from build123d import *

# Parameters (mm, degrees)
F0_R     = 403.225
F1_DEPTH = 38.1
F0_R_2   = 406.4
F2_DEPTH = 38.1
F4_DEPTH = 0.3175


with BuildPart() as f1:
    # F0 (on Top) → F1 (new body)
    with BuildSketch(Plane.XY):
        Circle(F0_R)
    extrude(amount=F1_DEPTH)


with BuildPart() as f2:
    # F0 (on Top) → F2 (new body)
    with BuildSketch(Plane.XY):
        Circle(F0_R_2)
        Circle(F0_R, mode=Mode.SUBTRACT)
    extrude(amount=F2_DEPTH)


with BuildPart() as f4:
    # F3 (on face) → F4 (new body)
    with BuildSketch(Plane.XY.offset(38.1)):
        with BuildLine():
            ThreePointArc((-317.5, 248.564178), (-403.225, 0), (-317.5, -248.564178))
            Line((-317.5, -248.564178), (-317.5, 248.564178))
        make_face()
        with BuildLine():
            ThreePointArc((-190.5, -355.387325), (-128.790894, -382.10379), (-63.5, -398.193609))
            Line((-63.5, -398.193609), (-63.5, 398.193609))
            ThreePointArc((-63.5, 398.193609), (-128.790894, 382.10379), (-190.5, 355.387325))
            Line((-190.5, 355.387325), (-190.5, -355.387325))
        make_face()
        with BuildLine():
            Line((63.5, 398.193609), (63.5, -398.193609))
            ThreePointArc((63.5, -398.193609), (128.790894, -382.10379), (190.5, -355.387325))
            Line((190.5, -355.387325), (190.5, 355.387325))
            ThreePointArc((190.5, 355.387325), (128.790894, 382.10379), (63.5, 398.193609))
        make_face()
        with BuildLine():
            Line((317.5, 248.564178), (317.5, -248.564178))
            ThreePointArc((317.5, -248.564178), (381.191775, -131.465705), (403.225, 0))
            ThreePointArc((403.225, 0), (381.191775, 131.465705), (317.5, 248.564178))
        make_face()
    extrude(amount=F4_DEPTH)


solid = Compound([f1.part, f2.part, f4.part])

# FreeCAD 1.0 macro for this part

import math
import FreeCAD as App
import Part
import Sketcher
from FreeCAD import Vector
Q = App.Units.Quantity

doc = App.newDocument("Part")
body = doc.addObject("PartDesign::Body", "Body")

# Sketch on XY plane
sketch1 = doc.addObject("Sketcher::SketchObject", "Sketch")
body.addObject(sketch1)
sketch1.AttachmentSupport = (doc.XY_Plane, [""])
sketch1.MapMode = "FlatFace"
sketch1.addGeometry(Part.Circle(Vector(0, 0, 0), Vector(0, 0, 1), 403), False)
sketch1.addConstraint(Sketcher.Constraint("Coincident", 0, 3, -1, 1))
sketch1.addConstraint(Sketcher.Constraint("Diameter", 0, Q("31.75 in")))
pad1 = doc.addObject("PartDesign::Pad", "Pad")
body.addObject(pad1)
pad1.Profile = sketch1
pad1.Length = Q("1.5 in")
body2 = doc.addObject("PartDesign::Body", "Body001")

# Sketch on XY plane
sketch2 = doc.addObject("Sketcher::SketchObject", "Sketch001")
body2.addObject(sketch2)
sketch2.AttachmentSupport = (doc.getObject("XY_Plane001"), [""])
sketch2.MapMode = "FlatFace"
sketch2.addGeometry(Part.Circle(Vector(0, 0, 0), Vector(0, 0, 1), 406), False)
sketch2.addGeometry(Part.Circle(Vector(0, 0, 0), Vector(0, 0, 1), 403), False)
sketch2.addConstraint(Sketcher.Constraint("Coincident", 0, 3, -1, 1))
sketch2.addConstraint(Sketcher.Constraint("Coincident", 1, 3, -1, 1))
sketch2.addConstraint(Sketcher.Constraint("Diameter", 0, Q("32 in")))
sketch2.addConstraint(Sketcher.Constraint("Diameter", 1, Q("31.75 in")))
pad2 = doc.addObject("PartDesign::Pad", "Pad001")
body2.addObject(pad2)
pad2.Profile = sketch2
pad2.Length = Q("1.5 in")
body3 = doc.addObject("PartDesign::Body", "Body002")
body3.AllowCompound = True

# Sketch on XY plane
sketch3 = doc.addObject("Sketcher::SketchObject", "Sketch002")
body3.addObject(sketch3)
sketch3.AttachmentSupport = (doc.getObject("XY_Plane002"), [""])
sketch3.MapMode = "FlatFace"
sketch3.AttachmentOffset = App.Placement(Vector(0, 0, 1.5 * 25.4), App.Rotation())
sketch3.addGeometry(Part.ArcOfCircle(Part.Circle(Vector(0, 0, 0), Vector(0, 0, 1), 403.225), math.radians(141.943343), math.radians(218.056657)), False)
sketch3.addGeometry(Part.LineSegment(Vector(-317.5, -248.564178, 0), Vector(-317.5, 248.564178, 0)), False)
sketch3.addGeometry(Part.ArcOfCircle(Part.Circle(Vector(-0.000008, -0.000016, 0), Vector(0, 0, 1), 403.224982), math.radians(-118.192861), math.radians(-99.060674)), False)
sketch3.addGeometry(Part.LineSegment(Vector(-63.5, -398.193609, 0), Vector(-63.5, 398.193609, 0)), False)
sketch3.addGeometry(Part.ArcOfCircle(Part.Circle(Vector(-0.000008, 0.000016, 0), Vector(0, 0, 1), 403.224982), math.radians(99.060674), math.radians(118.192861)), False)
sketch3.addGeometry(Part.LineSegment(Vector(-190.5, 355.387325, 0), Vector(-190.5, -355.387325, 0)), False)
sketch3.addGeometry(Part.LineSegment(Vector(63.5, 398.193609, 0), Vector(63.5, -398.193609, 0)), False)
sketch3.addGeometry(Part.ArcOfCircle(Part.Circle(Vector(0.000008, -0.000016, 0), Vector(0, 0, 1), 403.224982), math.radians(-80.939326), math.radians(-61.807139)), False)
sketch3.addGeometry(Part.LineSegment(Vector(190.5, -355.387325, 0), Vector(190.5, 355.387325, 0)), False)
sketch3.addGeometry(Part.ArcOfCircle(Part.Circle(Vector(0.000008, 0.000016, 0), Vector(0, 0, 1), 403.224982), math.radians(61.807139), math.radians(80.939326)), False)
sketch3.addGeometry(Part.LineSegment(Vector(317.5, 248.564178, 0), Vector(317.5, -248.564178, 0)), False)
sketch3.addGeometry(Part.ArcOfCircle(Part.Circle(Vector(0.000007, -0.000002, 0), Vector(0, 0, 1), 403.224993), math.radians(-38.056657), math.radians(0)), False)
sketch3.addGeometry(Part.ArcOfCircle(Part.Circle(Vector(0.000007, 0.000002, 0), Vector(0, 0, 1), 403.224993), math.radians(0), math.radians(38.056657)), False)
sketch3.addConstraint(Sketcher.Constraint("Coincident", 0, 1, 1, 2))
sketch3.addConstraint(Sketcher.Constraint("Coincident", 1, 1, 0, 2))
sketch3.addConstraint(Sketcher.Constraint("Coincident", 2, 2, 3, 1))
sketch3.addConstraint(Sketcher.Constraint("Coincident", 3, 2, 4, 1))
sketch3.addConstraint(Sketcher.Constraint("Coincident", 4, 2, 5, 1))
sketch3.addConstraint(Sketcher.Constraint("Coincident", 5, 2, 2, 1))
sketch3.addConstraint(Sketcher.Constraint("Coincident", 6, 2, 7, 1))
sketch3.addConstraint(Sketcher.Constraint("Coincident", 7, 2, 8, 1))
sketch3.addConstraint(Sketcher.Constraint("Coincident", 8, 2, 9, 1))
sketch3.addConstraint(Sketcher.Constraint("Coincident", 9, 2, 6, 1))
sketch3.addConstraint(Sketcher.Constraint("Coincident", 10, 2, 11, 1))
sketch3.addConstraint(Sketcher.Constraint("Coincident", 11, 2, 12, 1))
sketch3.addConstraint(Sketcher.Constraint("Coincident", 12, 2, 10, 1))
sketch3.addConstraint(Sketcher.Constraint("Vertical", 1))
sketch3.addConstraint(Sketcher.Constraint("Vertical", 3))
sketch3.addConstraint(Sketcher.Constraint("Vertical", 5))
sketch3.addConstraint(Sketcher.Constraint("Vertical", 6))
sketch3.addConstraint(Sketcher.Constraint("Vertical", 8))
sketch3.addConstraint(Sketcher.Constraint("Vertical", 10))
sketch3.addConstraint(Sketcher.Constraint("Coincident", 0, 3, -1, 1))
sketch3.addConstraint(Sketcher.Constraint("Coincident", 11, 3, -1, 1))
sketch3.addConstraint(Sketcher.Constraint("Coincident", 12, 3, -1, 1))
sketch3.addConstraint(Sketcher.Constraint("PointOnObject", 11, 2, -1))
sketch3.addConstraint(Sketcher.Constraint("Radius", 0, Q("15.875 in")))
sketch3.addConstraint(Sketcher.Constraint("DistanceX", 1, 1, 2, 2, Q("10 in")))
sketch3.addConstraint(Sketcher.Constraint("DistanceX", 4, 2, 3, 2, Q("5 in")))
sketch3.addConstraint(Sketcher.Constraint("DistanceX", 5, 2, 6, 2, Q("10 in")))
sketch3.addConstraint(Sketcher.Constraint("DistanceX", 6, 2, 7, 2, Q("5 in")))
sketch3.addConstraint(Sketcher.Constraint("DistanceX", 6, 2, 10, 2, Q("10 in")))
sketch3.addConstraint(Sketcher.Constraint("DistanceX", 1, 1, -1, 1, Q("12.5 in")))
sketch3.addConstraint(Sketcher.Constraint("DistanceX", -1, 1, 11, 2, Q("15.875 in")))
sketch3.addConstraint(Sketcher.Constraint("Radius", 2, 403.224982))
sketch3.addConstraint(Sketcher.Constraint("Radius", 4, 403.224982))
sketch3.addConstraint(Sketcher.Constraint("Radius", 7, 403.224982))
sketch3.addConstraint(Sketcher.Constraint("Radius", 9, 403.224982))
sketch3.addConstraint(Sketcher.Constraint("DistanceY", 3, 1, 3, 2, 796.387218))
sketch3.addConstraint(Sketcher.Constraint("DistanceY", 5, 2, 5, 1, 710.77465))
sketch3.addConstraint(Sketcher.Constraint("DistanceY", 6, 2, 6, 1, 796.387218))
sketch3.addConstraint(Sketcher.Constraint("DistanceY", 8, 1, 8, 2, 710.77465))
sketch3.addConstraint(Sketcher.Constraint("DistanceY", 2, 2, -1, 1, 398.193609))
sketch3.addConstraint(Sketcher.Constraint("DistanceY", 6, 2, -1, 1, 398.193609))
sketch3.addConstraint(Sketcher.Constraint("DistanceY", 1, 1, 2, 3, 248.564162))
sketch3.addConstraint(Sketcher.Constraint("DistanceY", 1, 1, 7, 3, 248.564162))
pad3 = doc.addObject("PartDesign::Pad", "Pad002")
body3.addObject(pad3)
pad3.Profile = sketch3
pad3.Length = Q("0.0125 in")

doc.recompute()
